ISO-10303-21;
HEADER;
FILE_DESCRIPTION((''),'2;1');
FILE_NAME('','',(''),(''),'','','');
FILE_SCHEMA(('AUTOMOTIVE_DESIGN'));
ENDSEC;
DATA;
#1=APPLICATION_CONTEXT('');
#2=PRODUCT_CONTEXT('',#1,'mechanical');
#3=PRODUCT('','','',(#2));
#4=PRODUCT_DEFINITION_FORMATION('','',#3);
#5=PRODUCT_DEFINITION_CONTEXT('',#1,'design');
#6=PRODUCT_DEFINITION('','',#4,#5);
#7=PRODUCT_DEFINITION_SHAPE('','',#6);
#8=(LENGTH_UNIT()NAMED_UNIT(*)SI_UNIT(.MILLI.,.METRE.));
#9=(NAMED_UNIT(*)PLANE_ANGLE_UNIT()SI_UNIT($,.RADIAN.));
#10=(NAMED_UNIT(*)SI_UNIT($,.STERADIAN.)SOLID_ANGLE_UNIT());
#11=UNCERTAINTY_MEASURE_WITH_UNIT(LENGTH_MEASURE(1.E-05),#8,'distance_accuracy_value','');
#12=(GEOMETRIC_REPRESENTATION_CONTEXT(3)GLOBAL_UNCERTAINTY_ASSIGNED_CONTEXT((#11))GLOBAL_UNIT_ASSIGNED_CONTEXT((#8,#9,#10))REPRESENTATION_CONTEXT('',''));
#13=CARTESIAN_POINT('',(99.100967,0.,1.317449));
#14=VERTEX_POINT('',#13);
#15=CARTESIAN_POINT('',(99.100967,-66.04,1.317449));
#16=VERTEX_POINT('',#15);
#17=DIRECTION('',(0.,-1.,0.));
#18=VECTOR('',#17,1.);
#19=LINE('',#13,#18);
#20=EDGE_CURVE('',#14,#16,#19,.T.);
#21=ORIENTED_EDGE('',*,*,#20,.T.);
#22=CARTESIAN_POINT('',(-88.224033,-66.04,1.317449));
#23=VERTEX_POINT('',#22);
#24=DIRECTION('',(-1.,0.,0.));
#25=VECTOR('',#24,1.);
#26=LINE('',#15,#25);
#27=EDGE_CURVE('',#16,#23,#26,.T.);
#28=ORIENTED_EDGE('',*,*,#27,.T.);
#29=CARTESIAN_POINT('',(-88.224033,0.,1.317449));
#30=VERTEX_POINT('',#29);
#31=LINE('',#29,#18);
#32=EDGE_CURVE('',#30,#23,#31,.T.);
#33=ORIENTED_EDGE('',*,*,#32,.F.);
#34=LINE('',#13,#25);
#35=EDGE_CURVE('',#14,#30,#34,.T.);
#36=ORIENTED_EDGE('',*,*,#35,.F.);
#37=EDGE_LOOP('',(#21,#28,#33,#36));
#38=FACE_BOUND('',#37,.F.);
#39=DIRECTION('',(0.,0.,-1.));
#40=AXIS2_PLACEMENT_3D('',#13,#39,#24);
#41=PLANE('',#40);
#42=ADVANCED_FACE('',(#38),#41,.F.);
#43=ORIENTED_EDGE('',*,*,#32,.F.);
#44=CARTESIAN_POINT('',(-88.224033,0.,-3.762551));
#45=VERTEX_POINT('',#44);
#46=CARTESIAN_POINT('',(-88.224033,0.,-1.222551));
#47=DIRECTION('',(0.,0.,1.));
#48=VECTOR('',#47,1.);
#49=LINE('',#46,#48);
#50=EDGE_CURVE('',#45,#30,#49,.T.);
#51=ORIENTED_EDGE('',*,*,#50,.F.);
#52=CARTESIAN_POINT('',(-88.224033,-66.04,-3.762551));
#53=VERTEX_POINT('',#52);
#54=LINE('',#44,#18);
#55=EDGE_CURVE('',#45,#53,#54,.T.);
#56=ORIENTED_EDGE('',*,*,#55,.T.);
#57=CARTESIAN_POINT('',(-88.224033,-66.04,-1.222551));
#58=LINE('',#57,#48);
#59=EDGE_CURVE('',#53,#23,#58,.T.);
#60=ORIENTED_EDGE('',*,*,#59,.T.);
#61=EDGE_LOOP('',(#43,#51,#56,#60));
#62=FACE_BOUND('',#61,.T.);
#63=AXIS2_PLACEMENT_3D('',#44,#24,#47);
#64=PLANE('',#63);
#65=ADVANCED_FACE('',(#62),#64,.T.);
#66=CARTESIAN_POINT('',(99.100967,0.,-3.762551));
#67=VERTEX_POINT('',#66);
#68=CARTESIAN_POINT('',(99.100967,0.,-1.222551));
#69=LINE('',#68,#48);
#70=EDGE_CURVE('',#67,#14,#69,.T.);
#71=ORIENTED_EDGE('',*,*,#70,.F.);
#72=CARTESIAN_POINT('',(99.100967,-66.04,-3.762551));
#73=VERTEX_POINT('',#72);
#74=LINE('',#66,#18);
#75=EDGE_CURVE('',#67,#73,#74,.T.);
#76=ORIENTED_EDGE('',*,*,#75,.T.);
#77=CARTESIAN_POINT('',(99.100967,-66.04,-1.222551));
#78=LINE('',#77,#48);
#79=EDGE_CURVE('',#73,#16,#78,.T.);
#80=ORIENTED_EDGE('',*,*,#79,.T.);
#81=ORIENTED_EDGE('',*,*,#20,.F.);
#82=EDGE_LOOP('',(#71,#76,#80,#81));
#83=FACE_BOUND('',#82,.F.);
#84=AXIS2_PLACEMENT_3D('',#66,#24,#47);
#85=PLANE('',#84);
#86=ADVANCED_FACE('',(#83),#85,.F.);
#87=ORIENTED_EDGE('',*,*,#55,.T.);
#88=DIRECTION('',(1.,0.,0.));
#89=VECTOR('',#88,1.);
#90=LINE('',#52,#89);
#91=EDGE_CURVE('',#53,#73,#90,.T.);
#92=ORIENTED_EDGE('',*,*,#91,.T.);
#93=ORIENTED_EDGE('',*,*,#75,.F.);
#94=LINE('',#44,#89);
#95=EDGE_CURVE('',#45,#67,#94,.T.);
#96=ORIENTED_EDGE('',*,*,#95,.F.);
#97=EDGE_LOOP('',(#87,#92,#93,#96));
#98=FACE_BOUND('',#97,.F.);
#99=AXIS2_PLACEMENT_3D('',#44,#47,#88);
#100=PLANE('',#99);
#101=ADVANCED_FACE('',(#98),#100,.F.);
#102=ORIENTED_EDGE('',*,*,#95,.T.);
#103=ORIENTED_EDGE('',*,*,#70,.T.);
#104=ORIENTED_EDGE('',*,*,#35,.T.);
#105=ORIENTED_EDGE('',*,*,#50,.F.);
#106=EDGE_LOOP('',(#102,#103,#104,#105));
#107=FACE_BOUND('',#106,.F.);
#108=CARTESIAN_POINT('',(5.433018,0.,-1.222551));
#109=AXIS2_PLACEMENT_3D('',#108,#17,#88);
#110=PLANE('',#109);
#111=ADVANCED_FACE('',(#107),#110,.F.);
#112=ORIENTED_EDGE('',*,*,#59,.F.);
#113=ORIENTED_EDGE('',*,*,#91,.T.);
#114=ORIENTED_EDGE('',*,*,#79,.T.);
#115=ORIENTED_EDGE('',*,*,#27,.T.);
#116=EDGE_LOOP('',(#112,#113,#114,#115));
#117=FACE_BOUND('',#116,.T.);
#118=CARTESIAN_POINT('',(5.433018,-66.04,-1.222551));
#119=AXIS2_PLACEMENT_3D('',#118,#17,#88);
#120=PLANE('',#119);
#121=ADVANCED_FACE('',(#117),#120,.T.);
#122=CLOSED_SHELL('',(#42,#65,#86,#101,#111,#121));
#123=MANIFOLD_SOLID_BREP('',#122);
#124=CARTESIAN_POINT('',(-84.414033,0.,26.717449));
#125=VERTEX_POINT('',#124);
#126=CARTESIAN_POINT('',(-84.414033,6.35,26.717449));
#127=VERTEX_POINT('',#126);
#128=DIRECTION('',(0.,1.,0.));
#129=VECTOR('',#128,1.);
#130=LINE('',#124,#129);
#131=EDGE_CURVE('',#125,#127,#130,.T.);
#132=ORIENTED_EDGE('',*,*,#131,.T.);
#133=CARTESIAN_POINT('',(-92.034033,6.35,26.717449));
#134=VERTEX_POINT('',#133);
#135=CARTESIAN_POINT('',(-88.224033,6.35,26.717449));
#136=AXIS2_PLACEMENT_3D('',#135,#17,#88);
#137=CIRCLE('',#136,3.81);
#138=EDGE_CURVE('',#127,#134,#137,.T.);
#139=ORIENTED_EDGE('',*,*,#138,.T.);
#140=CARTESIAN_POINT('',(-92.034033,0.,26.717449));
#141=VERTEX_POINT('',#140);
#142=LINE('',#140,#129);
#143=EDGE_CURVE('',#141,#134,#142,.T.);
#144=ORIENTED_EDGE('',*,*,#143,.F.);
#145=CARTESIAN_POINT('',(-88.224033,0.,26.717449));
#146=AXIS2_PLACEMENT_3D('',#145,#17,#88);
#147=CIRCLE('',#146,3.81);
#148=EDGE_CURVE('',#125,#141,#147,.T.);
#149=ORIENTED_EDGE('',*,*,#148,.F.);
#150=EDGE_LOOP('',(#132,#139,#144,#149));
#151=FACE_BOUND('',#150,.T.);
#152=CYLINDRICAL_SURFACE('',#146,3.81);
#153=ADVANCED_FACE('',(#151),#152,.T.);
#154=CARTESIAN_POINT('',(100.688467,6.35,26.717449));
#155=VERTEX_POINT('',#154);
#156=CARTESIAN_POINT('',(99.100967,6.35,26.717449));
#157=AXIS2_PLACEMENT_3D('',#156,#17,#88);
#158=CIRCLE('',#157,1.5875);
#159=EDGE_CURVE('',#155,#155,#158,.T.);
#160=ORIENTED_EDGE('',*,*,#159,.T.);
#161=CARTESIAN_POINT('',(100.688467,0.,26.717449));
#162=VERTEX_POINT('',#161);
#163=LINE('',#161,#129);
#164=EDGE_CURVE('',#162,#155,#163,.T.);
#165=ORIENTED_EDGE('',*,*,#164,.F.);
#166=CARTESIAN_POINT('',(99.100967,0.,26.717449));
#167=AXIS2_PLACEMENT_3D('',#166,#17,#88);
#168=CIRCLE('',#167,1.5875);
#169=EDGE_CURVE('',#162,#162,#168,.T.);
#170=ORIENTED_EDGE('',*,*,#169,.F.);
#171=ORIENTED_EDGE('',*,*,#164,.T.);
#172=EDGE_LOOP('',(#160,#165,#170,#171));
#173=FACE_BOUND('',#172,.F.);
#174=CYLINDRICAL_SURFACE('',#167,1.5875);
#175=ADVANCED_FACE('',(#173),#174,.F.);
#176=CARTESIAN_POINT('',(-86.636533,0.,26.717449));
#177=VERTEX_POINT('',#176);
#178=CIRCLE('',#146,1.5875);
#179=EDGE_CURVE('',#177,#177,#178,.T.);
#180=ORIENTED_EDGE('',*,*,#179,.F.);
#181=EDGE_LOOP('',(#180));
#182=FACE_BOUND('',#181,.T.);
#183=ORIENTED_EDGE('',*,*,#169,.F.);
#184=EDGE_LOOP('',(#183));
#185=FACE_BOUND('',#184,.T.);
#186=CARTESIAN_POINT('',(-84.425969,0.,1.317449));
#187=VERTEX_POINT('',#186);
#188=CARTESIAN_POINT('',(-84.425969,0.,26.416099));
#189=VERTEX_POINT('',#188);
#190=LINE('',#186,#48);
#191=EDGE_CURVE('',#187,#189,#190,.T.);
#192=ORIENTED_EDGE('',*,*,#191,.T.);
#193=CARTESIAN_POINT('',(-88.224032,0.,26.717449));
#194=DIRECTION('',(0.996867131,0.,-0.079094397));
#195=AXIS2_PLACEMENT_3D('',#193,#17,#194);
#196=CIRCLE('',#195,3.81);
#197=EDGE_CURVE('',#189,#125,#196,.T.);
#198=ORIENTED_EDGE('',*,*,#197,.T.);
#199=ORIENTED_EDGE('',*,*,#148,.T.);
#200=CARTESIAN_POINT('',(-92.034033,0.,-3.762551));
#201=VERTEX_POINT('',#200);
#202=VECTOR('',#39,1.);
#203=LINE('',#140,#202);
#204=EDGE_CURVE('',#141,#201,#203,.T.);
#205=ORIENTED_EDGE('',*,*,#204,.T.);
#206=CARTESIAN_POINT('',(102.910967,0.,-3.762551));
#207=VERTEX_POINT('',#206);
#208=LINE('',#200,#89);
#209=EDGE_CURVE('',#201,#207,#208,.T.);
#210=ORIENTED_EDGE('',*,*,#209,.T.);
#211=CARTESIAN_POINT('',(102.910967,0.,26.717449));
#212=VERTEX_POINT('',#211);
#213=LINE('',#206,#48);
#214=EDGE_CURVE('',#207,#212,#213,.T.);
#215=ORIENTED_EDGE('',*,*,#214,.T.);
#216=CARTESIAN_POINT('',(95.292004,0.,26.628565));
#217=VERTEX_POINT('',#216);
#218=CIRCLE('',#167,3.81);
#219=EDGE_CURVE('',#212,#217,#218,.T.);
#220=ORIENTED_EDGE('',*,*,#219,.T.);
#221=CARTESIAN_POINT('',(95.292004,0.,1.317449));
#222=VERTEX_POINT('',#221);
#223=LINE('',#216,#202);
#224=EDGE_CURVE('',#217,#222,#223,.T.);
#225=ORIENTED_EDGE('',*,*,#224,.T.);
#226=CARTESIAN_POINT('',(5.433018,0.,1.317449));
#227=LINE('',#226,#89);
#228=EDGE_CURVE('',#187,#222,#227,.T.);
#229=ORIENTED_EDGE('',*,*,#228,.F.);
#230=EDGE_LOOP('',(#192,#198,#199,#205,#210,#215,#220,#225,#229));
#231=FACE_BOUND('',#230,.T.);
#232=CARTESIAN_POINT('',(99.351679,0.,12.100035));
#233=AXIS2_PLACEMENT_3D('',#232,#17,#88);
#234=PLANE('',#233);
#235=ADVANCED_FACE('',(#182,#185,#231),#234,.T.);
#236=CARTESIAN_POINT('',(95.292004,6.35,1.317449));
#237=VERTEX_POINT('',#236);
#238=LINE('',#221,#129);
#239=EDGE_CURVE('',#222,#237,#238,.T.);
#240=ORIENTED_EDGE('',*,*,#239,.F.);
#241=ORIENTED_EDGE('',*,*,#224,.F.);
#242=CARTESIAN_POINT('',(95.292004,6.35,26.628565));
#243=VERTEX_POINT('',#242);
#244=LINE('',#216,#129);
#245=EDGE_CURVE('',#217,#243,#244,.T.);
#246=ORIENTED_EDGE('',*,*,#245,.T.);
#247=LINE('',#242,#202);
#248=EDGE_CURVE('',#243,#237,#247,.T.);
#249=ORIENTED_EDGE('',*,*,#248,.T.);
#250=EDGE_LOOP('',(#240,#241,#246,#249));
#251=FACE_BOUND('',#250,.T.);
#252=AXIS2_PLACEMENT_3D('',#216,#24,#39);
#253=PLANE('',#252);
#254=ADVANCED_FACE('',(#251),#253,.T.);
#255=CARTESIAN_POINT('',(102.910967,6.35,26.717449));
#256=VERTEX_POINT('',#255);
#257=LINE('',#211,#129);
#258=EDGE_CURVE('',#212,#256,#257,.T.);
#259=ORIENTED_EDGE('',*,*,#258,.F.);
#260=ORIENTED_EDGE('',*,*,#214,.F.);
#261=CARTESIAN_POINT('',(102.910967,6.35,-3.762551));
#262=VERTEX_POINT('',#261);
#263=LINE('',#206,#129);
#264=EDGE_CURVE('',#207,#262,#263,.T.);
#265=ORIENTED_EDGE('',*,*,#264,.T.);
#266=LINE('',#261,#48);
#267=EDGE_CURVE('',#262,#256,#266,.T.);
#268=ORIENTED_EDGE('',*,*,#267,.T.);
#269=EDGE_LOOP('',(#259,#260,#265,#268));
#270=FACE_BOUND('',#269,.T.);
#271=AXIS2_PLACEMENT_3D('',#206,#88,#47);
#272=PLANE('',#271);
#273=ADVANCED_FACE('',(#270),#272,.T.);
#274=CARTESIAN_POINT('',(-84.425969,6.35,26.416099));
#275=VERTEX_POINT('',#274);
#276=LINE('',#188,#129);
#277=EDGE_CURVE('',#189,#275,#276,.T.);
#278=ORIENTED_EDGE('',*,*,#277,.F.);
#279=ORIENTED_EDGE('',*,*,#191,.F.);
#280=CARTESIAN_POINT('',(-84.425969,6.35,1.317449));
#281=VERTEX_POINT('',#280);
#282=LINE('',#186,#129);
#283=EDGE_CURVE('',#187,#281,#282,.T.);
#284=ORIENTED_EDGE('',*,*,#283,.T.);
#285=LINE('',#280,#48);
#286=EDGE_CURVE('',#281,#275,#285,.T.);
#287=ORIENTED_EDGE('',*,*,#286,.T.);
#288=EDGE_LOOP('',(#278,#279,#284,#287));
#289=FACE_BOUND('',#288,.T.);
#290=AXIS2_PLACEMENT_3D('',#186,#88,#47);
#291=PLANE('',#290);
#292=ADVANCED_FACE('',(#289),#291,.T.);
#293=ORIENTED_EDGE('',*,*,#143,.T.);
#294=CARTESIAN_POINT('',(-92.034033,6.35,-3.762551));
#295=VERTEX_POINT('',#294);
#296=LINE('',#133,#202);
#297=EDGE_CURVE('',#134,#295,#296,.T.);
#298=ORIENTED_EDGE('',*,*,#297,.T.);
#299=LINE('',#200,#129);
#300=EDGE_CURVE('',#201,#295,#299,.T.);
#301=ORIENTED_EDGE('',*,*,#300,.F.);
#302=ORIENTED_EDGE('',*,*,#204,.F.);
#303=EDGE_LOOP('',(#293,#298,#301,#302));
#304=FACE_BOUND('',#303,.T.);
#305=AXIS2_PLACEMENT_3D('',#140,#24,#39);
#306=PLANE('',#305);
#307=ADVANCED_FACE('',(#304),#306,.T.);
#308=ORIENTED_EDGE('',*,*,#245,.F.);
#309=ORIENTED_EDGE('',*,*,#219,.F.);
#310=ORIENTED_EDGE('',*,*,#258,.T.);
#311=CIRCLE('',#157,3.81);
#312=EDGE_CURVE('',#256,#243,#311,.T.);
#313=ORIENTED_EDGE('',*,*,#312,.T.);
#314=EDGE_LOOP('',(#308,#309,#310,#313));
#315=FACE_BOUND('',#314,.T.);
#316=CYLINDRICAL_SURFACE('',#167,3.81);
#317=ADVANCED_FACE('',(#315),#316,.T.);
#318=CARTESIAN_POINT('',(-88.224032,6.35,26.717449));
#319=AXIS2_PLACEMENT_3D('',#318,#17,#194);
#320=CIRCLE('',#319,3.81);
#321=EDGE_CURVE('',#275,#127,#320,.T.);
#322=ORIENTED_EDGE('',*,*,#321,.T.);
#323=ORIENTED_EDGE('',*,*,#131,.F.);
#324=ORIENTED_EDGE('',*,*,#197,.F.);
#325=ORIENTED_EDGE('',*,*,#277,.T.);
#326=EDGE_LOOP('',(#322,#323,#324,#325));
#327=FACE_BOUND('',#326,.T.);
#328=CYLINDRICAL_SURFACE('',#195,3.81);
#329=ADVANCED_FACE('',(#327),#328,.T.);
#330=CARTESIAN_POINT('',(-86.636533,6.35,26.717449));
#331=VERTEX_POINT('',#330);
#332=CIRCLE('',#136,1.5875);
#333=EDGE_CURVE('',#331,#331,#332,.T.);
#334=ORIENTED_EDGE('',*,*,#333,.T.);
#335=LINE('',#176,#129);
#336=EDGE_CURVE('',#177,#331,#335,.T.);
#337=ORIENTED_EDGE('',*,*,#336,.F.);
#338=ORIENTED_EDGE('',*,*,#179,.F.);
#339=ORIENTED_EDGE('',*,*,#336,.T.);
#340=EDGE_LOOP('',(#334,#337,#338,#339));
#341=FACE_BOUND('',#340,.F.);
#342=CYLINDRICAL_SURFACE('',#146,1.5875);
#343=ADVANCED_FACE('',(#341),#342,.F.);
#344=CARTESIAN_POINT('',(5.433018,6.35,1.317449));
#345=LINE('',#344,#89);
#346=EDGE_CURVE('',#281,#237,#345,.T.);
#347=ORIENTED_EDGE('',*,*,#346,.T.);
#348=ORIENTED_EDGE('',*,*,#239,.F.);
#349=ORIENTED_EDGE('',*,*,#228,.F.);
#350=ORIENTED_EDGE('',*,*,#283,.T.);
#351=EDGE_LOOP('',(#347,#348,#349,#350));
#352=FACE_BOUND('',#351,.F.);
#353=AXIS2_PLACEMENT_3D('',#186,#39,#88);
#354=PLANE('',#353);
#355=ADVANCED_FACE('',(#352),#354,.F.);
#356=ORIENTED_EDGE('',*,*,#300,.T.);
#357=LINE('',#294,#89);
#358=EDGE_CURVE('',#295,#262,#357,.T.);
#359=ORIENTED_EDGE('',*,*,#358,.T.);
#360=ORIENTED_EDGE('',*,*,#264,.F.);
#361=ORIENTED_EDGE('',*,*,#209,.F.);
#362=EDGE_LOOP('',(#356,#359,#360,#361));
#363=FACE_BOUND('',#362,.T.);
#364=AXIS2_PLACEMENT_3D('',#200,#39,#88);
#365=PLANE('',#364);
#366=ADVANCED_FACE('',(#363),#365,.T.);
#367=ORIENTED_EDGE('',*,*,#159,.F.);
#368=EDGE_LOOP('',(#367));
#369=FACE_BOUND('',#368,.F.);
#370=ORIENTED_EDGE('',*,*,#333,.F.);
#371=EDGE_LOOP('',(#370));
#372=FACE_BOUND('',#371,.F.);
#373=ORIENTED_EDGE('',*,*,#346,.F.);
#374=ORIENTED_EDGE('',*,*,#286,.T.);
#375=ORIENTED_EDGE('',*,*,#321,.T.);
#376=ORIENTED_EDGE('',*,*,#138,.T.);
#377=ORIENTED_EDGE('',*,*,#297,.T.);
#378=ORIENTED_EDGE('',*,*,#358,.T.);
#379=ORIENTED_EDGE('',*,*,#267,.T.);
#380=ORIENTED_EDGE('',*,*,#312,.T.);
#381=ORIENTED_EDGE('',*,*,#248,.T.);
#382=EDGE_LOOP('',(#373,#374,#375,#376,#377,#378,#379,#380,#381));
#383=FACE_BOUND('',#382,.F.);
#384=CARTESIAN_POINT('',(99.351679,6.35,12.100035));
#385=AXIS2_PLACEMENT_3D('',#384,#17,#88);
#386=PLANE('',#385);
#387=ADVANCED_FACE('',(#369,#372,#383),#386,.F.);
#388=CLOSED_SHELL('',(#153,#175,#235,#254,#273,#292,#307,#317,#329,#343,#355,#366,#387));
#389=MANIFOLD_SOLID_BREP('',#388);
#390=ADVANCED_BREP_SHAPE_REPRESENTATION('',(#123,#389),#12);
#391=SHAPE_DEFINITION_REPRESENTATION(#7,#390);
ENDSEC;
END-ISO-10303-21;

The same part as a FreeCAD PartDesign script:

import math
import FreeCAD as App
import Part
import Sketcher

V = App.Vector
Q = App.Units.Quantity

doc = App.newDocument("Part")
body = doc.addObject("PartDesign::Body", "Body")

# Sketch on XZ plane
sketch1 = doc.addObject("Sketcher::SketchObject", "Sketch")
body.addObject(sketch1)
sketch1.AttachmentSupport = (doc.XZ_Plane, [""])
sketch1.MapMode = "FlatFace"
sketch1.addGeometry(Part.LineSegment(V(-88, 1, 0), V(-88, -4, 0)), False)
sketch1.addGeometry(Part.LineSegment(V(-88, -4, 0), V(99, -4, 0)), False)
sketch1.addGeometry(Part.LineSegment(V(99, -4, 0), V(99, 1, 0)), False)
sketch1.addGeometry(Part.LineSegment(V(99, 1, 0), V(-88, 1, 0)), False)
sketch1.addConstraint(Sketcher.Constraint("Coincident", 0, 2, 1, 1))
sketch1.addConstraint(Sketcher.Constraint("Coincident", 1, 2, 2, 1))
sketch1.addConstraint(Sketcher.Constraint("Coincident", 2, 2, 3, 1))
sketch1.addConstraint(Sketcher.Constraint("Coincident", 3, 2, 0, 1))
sketch1.addConstraint(Sketcher.Constraint("Vertical", 0))
sketch1.addConstraint(Sketcher.Constraint("Horizontal", 1))
sketch1.addConstraint(Sketcher.Constraint("Vertical", 2))
sketch1.addConstraint(Sketcher.Constraint("Horizontal", 3))
sketch1.addConstraint(Sketcher.Constraint("DistanceY", 0, 2, 0, 1, Q("0.2 in")))
sketch1.addConstraint(Sketcher.Constraint("DistanceX", 1, 1, 1, 2, Q("7.375 in")))
sketch1.addConstraint(Sketcher.Constraint("DistanceY", 0, 2, -1, 1, 3.762551))
sketch1.addConstraint(Sketcher.Constraint("DistanceX", 0, 2, -1, 1, 88.224033))
pad1 = doc.addObject("PartDesign::Pad", "Pad")
body.addObject(pad1)
pad1.Profile = sketch1
pad1.Length = Q("2.6 in")
body2 = doc.addObject("PartDesign::Body", "Body001")

# Sketch on XZ plane
sketch2 = doc.addObject("Sketcher::SketchObject", "Sketch001")
body2.addObject(sketch2)
sketch2.AttachmentSupport = (doc.getObject("XZ_Plane001"), [""])
sketch2.MapMode = "FlatFace"
sketch2.addGeometry(Part.LineSegment(V(95.29, 26.63, 0), V(95.29, 1.32, 0)), False)
sketch2.addGeometry(Part.LineSegment(V(95.29, 1.32, 0), V(-84.43, 1.32, 0)), False)
sketch2.addGeometry(Part.LineSegment(V(-84.43, 1.32, 0), V(-84.43, 26.42, 0)), False)
sketch2.addGeometry(Part.ArcOfCircle(Part.Circle(V(-88.22, 26.72, 0), V(0, 0, 1), 3.81), math.radians(-4.54), math.radians(0)), False)
sketch2.addGeometry(Part.ArcOfCircle(Part.Circle(V(-88.22, 26.72, 0), V(0, 0, 1), 3.81), math.radians(0), math.radians(180)), False)
sketch2.addGeometry(Part.LineSegment(V(-92.03, 26.72, 0), V(-92.03, -3.76, 0)), False)
sketch2.addGeometry(Part.LineSegment(V(-92.03, -3.76, 0), V(102.91, -3.76, 0)), False)
sketch2.addGeometry(Part.LineSegment(V(102.91, -3.76, 0), V(102.91, 26.72, 0)), False)
sketch2.addGeometry(Part.ArcOfCircle(Part.Circle(V(99.1, 26.72, 0), V(0, 0, 1), 3.81), math.radians(0), math.radians(181)), False)
sketch2.addGeometry(Part.Circle(V(99.1, 26.72, 0), V(0, 0, 1), 1.59), False)
sketch2.addGeometry(Part.Circle(V(-88.22, 26.72, 0), V(0, 0, 1), 1.59), False)
sketch2.addConstraint(Sketcher.Constraint("Coincident", 0, 2, 1, 1))
sketch2.addConstraint(Sketcher.Constraint("Coincident", 1, 2, 2, 1))
sketch2.addConstraint(Sketcher.Constraint("Coincident", 2, 2, 3, 1))
sketch2.addConstraint(Sketcher.Constraint("Tangent", 3, 2, 4, 1))
sketch2.addConstraint(Sketcher.Constraint("Tangent", 4, 2, 5, 1))
sketch2.addConstraint(Sketcher.Constraint("Coincident", 5, 2, 6, 1))
sketch2.addConstraint(Sketcher.Constraint("Coincident", 6, 2, 7, 1))
sketch2.addConstraint(Sketcher.Constraint("Tangent", 7, 2, 8, 1))
sketch2.addConstraint(Sketcher.Constraint("Coincident", 8, 2, 0, 1))
sketch2.addConstraint(Sketcher.Constraint("Vertical", 0))
sketch2.addConstraint(Sketcher.Constraint("Horizontal", 1))
sketch2.addConstraint(Sketcher.Constraint("Vertical", 2))
sketch2.addConstraint(Sketcher.Constraint("Vertical", 5))
sketch2.addConstraint(Sketcher.Constraint("Horizontal", 6))
sketch2.addConstraint(Sketcher.Constraint("Vertical", 7))
sketch2.addConstraint(Sketcher.Constraint("Coincident", 9, 3, 8, 3))
sketch2.addConstraint(Sketcher.Constraint("Coincident", 10, 3, 3, 3))
sketch2.addConstraint(Sketcher.Constraint("Equal", 3, 4))
sketch2.addConstraint(Sketcher.Constraint("Equal", 4, 8))
sketch2.addConstraint(Sketcher.Constraint("Equal", 9, 10))
sketch2.addConstraint(Sketcher.Constraint("Horizontal", 4, 3, 8, 3))
sketch2.addConstraint(Sketcher.Constraint("Horizontal", 10, 3, 3, 2))
sketch2.addConstraint(Sketcher.Constraint("Radius", 3, Q("0.15 in")))
sketch2.addConstraint(Sketcher.Constraint("Diameter", 9, Q("0.125 in")))
sketch2.addConstraint(Sketcher.Constraint("DistanceY", 5, 2, 5, 1, Q("1.2 in")))
sketch2.addConstraint(Sketcher.Constraint("DistanceY", 0, 2, 8, 3, Q("1 in")))
sketch2.addConstraint(Sketcher.Constraint("DistanceX", 6, 1, 6, 2, Q("7.675 in")))
sketch2.addConstraint(Sketcher.Constraint("DistanceY", 2, 1, 2, 2, 25.09865))
sketch2.addConstraint(Sketcher.Constraint("DistanceY", -1, 1, 2, 2, 26.416099))
sketch2.addConstraint(Sketcher.Constraint("DistanceX", 1, 2, 1, 1, 179.717973))
sketch2.addConstraint(Sketcher.Constraint("DistanceX", 1, 2, -1, 1, 84.425969))
pad2 = doc.addObject("PartDesign::Pad", "Pad001")
body2.addObject(pad2)
pad2.Profile = sketch2
pad2.Length = Q("0.25 in")
pad2.Reversed = True

doc.recompute()
